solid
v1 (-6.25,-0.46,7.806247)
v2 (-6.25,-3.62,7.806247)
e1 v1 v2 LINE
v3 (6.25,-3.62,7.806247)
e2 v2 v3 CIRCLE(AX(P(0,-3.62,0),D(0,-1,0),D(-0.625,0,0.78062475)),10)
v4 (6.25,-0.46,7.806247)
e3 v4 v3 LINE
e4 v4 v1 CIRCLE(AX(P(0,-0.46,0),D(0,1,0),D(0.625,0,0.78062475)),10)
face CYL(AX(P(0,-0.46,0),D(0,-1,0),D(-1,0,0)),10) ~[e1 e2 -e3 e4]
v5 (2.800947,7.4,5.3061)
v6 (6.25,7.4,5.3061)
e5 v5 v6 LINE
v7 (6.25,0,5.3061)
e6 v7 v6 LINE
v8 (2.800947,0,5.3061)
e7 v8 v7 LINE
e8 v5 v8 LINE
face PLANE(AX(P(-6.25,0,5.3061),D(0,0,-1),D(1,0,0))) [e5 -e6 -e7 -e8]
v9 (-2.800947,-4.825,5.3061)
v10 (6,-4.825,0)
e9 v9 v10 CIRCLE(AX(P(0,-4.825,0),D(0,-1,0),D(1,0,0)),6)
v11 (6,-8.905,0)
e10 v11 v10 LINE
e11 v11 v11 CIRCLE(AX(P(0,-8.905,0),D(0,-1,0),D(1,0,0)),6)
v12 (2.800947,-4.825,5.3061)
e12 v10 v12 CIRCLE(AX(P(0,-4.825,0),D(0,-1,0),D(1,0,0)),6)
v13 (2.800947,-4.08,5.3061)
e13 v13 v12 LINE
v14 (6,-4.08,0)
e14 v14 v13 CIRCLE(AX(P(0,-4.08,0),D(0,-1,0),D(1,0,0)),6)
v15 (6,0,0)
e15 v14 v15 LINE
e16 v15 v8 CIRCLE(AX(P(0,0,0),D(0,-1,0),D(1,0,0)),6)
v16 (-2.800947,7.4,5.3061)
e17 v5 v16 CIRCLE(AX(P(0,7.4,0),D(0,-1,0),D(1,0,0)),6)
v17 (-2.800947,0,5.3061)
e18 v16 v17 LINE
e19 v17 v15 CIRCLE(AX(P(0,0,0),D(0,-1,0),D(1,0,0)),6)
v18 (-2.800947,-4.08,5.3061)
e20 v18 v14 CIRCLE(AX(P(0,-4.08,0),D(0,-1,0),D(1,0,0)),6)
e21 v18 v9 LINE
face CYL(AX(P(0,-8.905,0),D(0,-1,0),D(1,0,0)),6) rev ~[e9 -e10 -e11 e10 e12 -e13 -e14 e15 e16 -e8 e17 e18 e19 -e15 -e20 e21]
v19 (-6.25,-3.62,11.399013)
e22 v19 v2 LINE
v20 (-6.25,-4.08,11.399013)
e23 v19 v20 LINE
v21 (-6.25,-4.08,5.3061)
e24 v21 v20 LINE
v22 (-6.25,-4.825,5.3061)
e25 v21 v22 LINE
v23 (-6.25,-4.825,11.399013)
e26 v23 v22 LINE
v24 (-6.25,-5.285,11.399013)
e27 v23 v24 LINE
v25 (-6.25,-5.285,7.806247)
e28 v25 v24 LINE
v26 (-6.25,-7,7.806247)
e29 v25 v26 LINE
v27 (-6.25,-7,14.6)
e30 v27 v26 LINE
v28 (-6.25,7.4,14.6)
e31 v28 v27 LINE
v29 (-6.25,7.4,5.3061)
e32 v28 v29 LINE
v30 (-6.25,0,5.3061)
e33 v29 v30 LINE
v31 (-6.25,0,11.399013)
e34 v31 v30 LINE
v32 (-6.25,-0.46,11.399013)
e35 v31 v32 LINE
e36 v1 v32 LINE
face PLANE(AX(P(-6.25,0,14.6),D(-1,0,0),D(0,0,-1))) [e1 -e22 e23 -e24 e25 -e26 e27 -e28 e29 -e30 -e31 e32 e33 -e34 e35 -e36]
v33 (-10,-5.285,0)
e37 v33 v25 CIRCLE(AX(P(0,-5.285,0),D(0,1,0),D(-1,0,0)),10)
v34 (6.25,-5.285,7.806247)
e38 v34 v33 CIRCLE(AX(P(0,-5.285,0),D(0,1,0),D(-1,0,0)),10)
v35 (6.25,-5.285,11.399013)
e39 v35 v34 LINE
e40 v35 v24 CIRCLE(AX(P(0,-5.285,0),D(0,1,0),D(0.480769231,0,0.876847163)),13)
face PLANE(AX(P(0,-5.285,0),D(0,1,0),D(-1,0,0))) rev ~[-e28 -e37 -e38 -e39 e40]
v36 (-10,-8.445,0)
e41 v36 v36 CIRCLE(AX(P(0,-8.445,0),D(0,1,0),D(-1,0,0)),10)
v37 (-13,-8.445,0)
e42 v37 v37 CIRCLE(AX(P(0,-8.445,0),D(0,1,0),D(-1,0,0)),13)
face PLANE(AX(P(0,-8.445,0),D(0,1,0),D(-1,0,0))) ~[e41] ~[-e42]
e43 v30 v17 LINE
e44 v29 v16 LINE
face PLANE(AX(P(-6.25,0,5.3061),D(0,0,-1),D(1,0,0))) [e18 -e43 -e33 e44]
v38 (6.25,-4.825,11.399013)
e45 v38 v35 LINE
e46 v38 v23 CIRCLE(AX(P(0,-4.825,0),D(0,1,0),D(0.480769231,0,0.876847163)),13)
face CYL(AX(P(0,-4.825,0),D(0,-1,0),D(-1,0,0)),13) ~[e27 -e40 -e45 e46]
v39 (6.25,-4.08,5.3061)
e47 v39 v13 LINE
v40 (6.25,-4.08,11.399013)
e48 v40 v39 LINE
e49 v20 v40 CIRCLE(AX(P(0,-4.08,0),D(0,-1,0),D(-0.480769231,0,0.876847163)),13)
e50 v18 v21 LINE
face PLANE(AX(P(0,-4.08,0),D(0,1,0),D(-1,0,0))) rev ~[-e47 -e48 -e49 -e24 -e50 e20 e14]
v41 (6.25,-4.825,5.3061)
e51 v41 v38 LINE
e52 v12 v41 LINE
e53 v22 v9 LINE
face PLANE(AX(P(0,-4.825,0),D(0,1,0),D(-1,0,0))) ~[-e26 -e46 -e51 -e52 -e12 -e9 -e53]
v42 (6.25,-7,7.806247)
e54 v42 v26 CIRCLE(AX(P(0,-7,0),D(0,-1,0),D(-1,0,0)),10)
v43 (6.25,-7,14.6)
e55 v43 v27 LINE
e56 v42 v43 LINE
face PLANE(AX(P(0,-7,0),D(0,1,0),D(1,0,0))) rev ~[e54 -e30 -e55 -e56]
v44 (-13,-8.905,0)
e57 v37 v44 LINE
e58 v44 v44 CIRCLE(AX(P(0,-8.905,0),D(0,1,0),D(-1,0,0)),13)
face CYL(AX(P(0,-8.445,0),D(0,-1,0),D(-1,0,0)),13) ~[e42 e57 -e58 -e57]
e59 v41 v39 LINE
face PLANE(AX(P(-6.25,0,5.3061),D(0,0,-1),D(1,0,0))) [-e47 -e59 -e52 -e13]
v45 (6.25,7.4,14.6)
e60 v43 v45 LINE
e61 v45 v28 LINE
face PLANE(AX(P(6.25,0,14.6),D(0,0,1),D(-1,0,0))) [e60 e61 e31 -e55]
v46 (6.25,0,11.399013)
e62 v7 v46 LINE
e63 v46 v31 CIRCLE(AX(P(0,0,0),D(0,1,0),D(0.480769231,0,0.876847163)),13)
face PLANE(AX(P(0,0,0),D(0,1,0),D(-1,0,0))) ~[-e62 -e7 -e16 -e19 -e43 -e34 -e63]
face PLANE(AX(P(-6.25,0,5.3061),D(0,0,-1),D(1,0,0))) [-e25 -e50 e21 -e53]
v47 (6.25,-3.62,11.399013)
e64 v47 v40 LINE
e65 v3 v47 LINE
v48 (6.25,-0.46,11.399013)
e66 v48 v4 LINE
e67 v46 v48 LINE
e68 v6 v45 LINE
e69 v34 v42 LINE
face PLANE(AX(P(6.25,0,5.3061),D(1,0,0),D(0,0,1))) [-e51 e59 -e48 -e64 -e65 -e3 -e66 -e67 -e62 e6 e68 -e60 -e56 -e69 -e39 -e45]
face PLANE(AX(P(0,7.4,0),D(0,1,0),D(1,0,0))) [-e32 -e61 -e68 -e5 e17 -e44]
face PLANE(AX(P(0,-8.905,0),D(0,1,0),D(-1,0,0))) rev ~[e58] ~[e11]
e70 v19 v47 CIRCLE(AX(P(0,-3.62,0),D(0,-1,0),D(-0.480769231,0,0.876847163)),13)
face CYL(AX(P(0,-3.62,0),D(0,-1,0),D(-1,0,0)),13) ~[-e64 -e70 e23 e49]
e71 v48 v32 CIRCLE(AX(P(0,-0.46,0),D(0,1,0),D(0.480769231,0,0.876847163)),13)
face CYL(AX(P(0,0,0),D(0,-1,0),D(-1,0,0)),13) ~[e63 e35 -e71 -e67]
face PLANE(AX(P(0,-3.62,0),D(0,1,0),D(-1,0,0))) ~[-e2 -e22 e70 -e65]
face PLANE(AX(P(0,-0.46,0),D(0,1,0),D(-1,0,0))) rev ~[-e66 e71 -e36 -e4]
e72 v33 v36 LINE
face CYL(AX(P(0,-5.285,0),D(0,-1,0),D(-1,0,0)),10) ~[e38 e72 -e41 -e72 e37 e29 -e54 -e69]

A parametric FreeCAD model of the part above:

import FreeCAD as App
import Part
import Sketcher
from FreeCAD import Vector
Q = App.Units.Quantity

doc = App.newDocument("Part")
body = doc.addObject("PartDesign::Body", "Body")
body.AllowCompound = True

sketch1 = doc.addObject("Sketcher::SketchObject", "Sketch")
body.addObject(sketch1)
sketch1.AttachmentSupport = (doc.XY_Plane, [""])
sketch1.MapMode = "FlatFace"
sketch1.addGeometry(Part.LineSegment(Vector(0, -4.08, 0), Vector(0, 0, 0)), False)
sketch1.addGeometry(Part.LineSegment(Vector(0, 0, 0), Vector(-13, 0, 0)), False)
sketch1.addGeometry(Part.LineSegment(Vector(-13, 0, 0), Vector(-13, -0.46, 0)), False)
sketch1.addGeometry(Part.LineSegment(Vector(-13, -0.46, 0), Vector(-10, -0.46, 0)), False)
sketch1.addGeometry(Part.LineSegment(Vector(-10, -0.46, 0), Vector(-10, -3.62, 0)), False)
sketch1.addGeometry(Part.LineSegment(Vector(-10, -3.62, 0), Vector(-13, -3.62, 0)), False)
sketch1.addGeometry(Part.LineSegment(Vector(-13, -3.62, 0), Vector(-13, -4.08, 0)), False)
sketch1.addGeometry(Part.LineSegment(Vector(-13, -4.08, 0), Vector(0, -4.08, 0)), False)
sketch1.addGeometry(Part.LineSegment(Vector(0, -8.9, 0), Vector(0, -4.83, 0)), False)
sketch1.addGeometry(Part.LineSegment(Vector(0, -4.83, 0), Vector(-13, -4.83, 0)), False)
sketch1.addGeometry(Part.LineSegment(Vector(-13, -4.83, 0), Vector(-13, -5.29, 0)), False)
sketch1.addGeometry(Part.LineSegment(Vector(-13, -5.29, 0), Vector(-10, -5.29, 0)), False)
sketch1.addGeometry(Part.LineSegment(Vector(-10, -5.29, 0), Vector(-10, -8.45, 0)), False)
sketch1.addGeometry(Part.LineSegment(Vector(-10, -8.45, 0), Vector(-13, -8.45, 0)), False)
sketch1.addGeometry(Part.LineSegment(Vector(-13, -8.45, 0), Vector(-13, -8.9, 0)), False)
sketch1.addGeometry(Part.LineSegment(Vector(-13, -8.9, 0), Vector(0, -8.9, 0)), False)
sketch1.addConstraint(Sketcher.Constraint("Coincident", 0, 2, 1, 1))
sketch1.addConstraint(Sketcher.Constraint("Coincident", 1, 2, 2, 1))
sketch1.addConstraint(Sketcher.Constraint("Coincident", 2, 2, 3, 1))
sketch1.addConstraint(Sketcher.Constraint("Coincident", 3, 2, 4, 1))
sketch1.addConstraint(Sketcher.Constraint("Coincident", 4, 2, 5, 1))
sketch1.addConstraint(Sketcher.Constraint("Coincident", 5, 2, 6, 1))
sketch1.addConstraint(Sketcher.Constraint("Coincident", 6, 2, 7, 1))
sketch1.addConstraint(Sketcher.Constraint("Coincident", 7, 2, 0, 1))
sketch1.addConstraint(Sketcher.Constraint("Coincident", 8, 2, 9, 1))
sketch1.addConstraint(Sketcher.Constraint("Coincident", 9, 2, 10, 1))
sketch1.addConstraint(Sketcher.Constraint("Coincident", 10, 2, 11, 1))
sketch1.addConstraint(Sketcher.Constraint("Coincident", 11, 2, 12, 1))
sketch1.addConstraint(Sketcher.Constraint("Coincident", 12, 2, 13, 1))
sketch1.addConstraint(Sketcher.Constraint("Coincident", 13, 2, 14, 1))
sketch1.addConstraint(Sketcher.Constraint("Coincident", 14, 2, 15, 1))
sketch1.addConstraint(Sketcher.Constraint("Coincident", 15, 2, 8, 1))
sketch1.addConstraint(Sketcher.Constraint("Vertical", 0))
sketch1.addConstraint(Sketcher.Constraint("Horizontal", 1))
sketch1.addConstraint(Sketcher.Constraint("Vertical", 2))
sketch1.addConstraint(Sketcher.Constraint("Horizontal", 3))
sketch1.addConstraint(Sketcher.Constraint("Vertical", 4))
sketch1.addConstraint(Sketcher.Constraint("Horizontal", 5))
sketch1.addConstraint(Sketcher.Constraint("Vertical", 6))
sketch1.addConstraint(Sketcher.Constraint("Horizontal", 7))
sketch1.addConstraint(Sketcher.Constraint("Vertical", 8))
sketch1.addConstraint(Sketcher.Constraint("Horizontal", 9))
sketch1.addConstraint(Sketcher.Constraint("Vertical", 10))
sketch1.addConstraint(Sketcher.Constraint("Horizontal", 11))
sketch1.addConstraint(Sketcher.Constraint("Vertical", 12))
sketch1.addConstraint(Sketcher.Constraint("Horizontal", 13))
sketch1.addConstraint(Sketcher.Constraint("Vertical", 14))
sketch1.addConstraint(Sketcher.Constraint("Horizontal", 15))
sketch1.addConstraint(Sketcher.Constraint("Coincident", 0, 2, -1, 1))
sketch1.addConstraint(Sketcher.Constraint("PointOnObject", 8, 2, -2))
sketch1.addConstraint(Sketcher.Constraint("Vertical", 2, 2, 5, 2))
sketch1.addConstraint(Sketcher.Constraint("Vertical", 6, 2, 9, 2))
sketch1.addConstraint(Sketcher.Constraint("Vertical", 4, 2, 11, 2))
sketch1.addConstraint(Sketcher.Constraint("Vertical", 10, 2, 13, 2))
sketch1.addConstraint(Sketcher.Constraint("Equal", 2, 6))
sketch1.addConstraint(Sketcher.Constraint("Equal", 0, 8))
sketch1.addConstraint(Sketcher.Constraint("Equal", 6, 10))
sketch1.addConstraint(Sketcher.Constraint("Equal", 4, 12))
sketch1.addConstraint(Sketcher.Constraint("DistanceX", 1, 2, 1, 1, Q("13 mm")))
sketch1.addConstraint(Sketcher.Constraint("DistanceX", 3, 1, 3, 2, Q("3 mm")))
sketch1.addConstraint(Sketcher.Constraint("DistanceY", 2, 2, 2, 1, Q("0.46 mm")))
sketch1.addConstraint(Sketcher.Constraint("DistanceY", 4, 2, 4, 1, Q("3.16 mm")))
sketch1.addConstraint(Sketcher.Constraint("DistanceY", 8, 2, -1, 1, Q("4.825 mm")))
revolution = doc.addObject("PartDesign::Revolution", "Revolution")
body.addObject(revolution)
revolution.Profile = sketch1
revolution.ReferenceAxis = (sketch1, ["V_Axis"])
revolution.Angle = 360

sketch2 = doc.addObject("Sketcher::SketchObject", "Sketch001")
body.addObject(sketch2)
sketch2.AttachmentSupport = (doc.XZ_Plane, [""])
sketch2.MapMode = "FlatFace"
sketch2.addGeometry(Part.LineSegment(Vector(-6, 15, 0), Vector(6, 15, 0)), False)
sketch2.addGeometry(Part.LineSegment(Vector(6, 15, 0), Vector(6, 5, 0)), False)
sketch2.addGeometry(Part.LineSegment(Vector(6, 5, 0), Vector(-6, 5, 0)), False)
sketch2.addGeometry(Part.LineSegment(Vector(-6, 5, 0), Vector(-6, 15, 0)), False)
sketch2.addConstraint(Sketcher.Constraint("Coincident", 0, 2, 1, 1))
sketch2.addConstraint(Sketcher.Constraint("Coincident", 1, 2, 2, 1))
sketch2.addConstraint(Sketcher.Constraint("Coincident", 2, 2, 3, 1))
sketch2.addConstraint(Sketcher.Constraint("Coincident", 3, 2, 0, 1))
sketch2.addConstraint(Sketcher.Constraint("Horizontal", 0))
sketch2.addConstraint(Sketcher.Constraint("Vertical", 1))
sketch2.addConstraint(Sketcher.Constraint("Horizontal", 2))
sketch2.addConstraint(Sketcher.Constraint("Vertical", 3))
sketch2.addConstraint(Sketcher.Constraint("DistanceX", 0, 1, 0, 2, Q("12.5 mm")))
sketch2.addConstraint(Sketcher.Constraint("DistanceY", -1, 1, 0, 2, Q("14.6 mm")))
sketch2.addConstraint(Sketcher.Constraint("DistanceY", 1, 2, 1, 1, Q("9.294 mm")))
sketch2.addConstraint(Sketcher.Constraint("DistanceX", -1, 1, 0, 2, Q("6.25 mm")))
pad1 = doc.addObject("PartDesign::Pad", "Pad")
body.addObject(pad1)
pad1.Profile = sketch2
pad1.Type = "TwoLengths"
pad1.Length = 7.4
pad1.Length2 = 7
pad1.Reversed = True

sketch3 = doc.addObject("Sketcher::SketchObject", "Sketch002")
body.addObject(sketch3)
sketch3.AttachmentSupport = (doc.XZ_Plane, [""])
sketch3.MapMode = "FlatFace"
sketch3.AttachmentOffset = App.Placement(Vector(0, 0, 8.905), App.Rotation())
sketch3.addGeometry(Part.Circle(Vector(0, 0, 0), Vector(0, 0, 1), 6), False)
sketch3.addConstraint(Sketcher.Constraint("Coincident", 0, 3, -1, 1))
sketch3.addConstraint(Sketcher.Constraint("Diameter", 0, Q("12 mm")))
pocket1 = doc.addObject("PartDesign::Pocket", "Pocket")
body.addObject(pocket1)
pocket1.Profile = sketch3
pocket1.Type = "ThroughAll"

doc.recompute()
